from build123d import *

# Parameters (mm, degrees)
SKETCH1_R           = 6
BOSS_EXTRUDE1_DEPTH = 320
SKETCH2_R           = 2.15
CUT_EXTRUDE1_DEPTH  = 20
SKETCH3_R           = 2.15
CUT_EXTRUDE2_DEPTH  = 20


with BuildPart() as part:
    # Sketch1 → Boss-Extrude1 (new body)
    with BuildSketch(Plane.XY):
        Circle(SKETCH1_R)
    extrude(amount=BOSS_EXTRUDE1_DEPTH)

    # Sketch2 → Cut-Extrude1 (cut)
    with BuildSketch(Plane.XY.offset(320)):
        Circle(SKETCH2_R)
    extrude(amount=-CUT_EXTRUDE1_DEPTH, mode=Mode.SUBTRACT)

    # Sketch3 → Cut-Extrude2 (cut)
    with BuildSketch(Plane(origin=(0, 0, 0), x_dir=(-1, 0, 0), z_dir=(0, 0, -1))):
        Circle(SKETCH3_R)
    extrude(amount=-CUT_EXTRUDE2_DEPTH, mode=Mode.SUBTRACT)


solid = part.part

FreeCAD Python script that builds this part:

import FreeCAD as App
import Part
import Sketcher
from FreeCAD import Vector
Q = App.Units.Quantity

doc = App.newDocument("Part")
body = doc.addObject("PartDesign::Body", "Body")

# Sketch on XY plane
sketch1 = body.newObject("Sketcher::SketchObject", "Sketch")
sketch1.AttachmentSupport = (doc.getObject("XY_Plane"), [""])
sketch1.MapMode = "FlatFace"
sketch1.addGeometry(Part.Circle(Vector(0, 0, 0), Vector(0, 0, 1), 6), False)
sketch1.addConstraint([
    Sketcher.Constraint("Coincident", 0, 3, -1, 1),
    Sketcher.Constraint("Diameter", 0, Q("12 mm")),
])
pad1 = body.newObject("PartDesign::Pad", "Pad")
pad1.Profile = sketch1
pad1.Length = 320

# Sketch on XY plane
sketch2 = body.newObject("Sketcher::SketchObject", "Sketch001")
sketch2.AttachmentSupport = (doc.getObject("XY_Plane"), [""])
sketch2.MapMode = "FlatFace"
sketch2.AttachmentOffset = App.Placement(Vector(0, 0, 320), App.Rotation())
sketch2.addGeometry(Part.Circle(Vector(0, 0, 0), Vector(0, 0, 1), 2.1), False)
sketch2.addConstraint([
    Sketcher.Constraint("Coincident", 0, 3, -1, 1),
    Sketcher.Constraint("Diameter", 0, Q("4.3 mm")),
])
pocket1 = body.newObject("PartDesign::Pocket", "Pocket")
pocket1.Profile = sketch2
pocket1.Length = 20

# Sketch on XY plane
sketch3 = body.newObject("Sketcher::SketchObject", "Sketch002")
sketch3.AttachmentSupport = (doc.getObject("XY_Plane"), [""])
sketch3.MapMode = "FlatFace"
sketch3.addGeometry(Part.Circle(Vector(0, 0, 0), Vector(0, 0, 1), 2.1), False)
sketch3.addConstraint([
    Sketcher.Constraint("Coincident", 0, 3, -1, 1),
    Sketcher.Constraint("Diameter", 0, Q("4.3 mm")),
])
pocket2 = body.newObject("PartDesign::Pocket", "Pocket001")
pocket2.Profile = sketch3
pocket2.Length = 20
pocket2.Reversed = True

doc.recompute()
